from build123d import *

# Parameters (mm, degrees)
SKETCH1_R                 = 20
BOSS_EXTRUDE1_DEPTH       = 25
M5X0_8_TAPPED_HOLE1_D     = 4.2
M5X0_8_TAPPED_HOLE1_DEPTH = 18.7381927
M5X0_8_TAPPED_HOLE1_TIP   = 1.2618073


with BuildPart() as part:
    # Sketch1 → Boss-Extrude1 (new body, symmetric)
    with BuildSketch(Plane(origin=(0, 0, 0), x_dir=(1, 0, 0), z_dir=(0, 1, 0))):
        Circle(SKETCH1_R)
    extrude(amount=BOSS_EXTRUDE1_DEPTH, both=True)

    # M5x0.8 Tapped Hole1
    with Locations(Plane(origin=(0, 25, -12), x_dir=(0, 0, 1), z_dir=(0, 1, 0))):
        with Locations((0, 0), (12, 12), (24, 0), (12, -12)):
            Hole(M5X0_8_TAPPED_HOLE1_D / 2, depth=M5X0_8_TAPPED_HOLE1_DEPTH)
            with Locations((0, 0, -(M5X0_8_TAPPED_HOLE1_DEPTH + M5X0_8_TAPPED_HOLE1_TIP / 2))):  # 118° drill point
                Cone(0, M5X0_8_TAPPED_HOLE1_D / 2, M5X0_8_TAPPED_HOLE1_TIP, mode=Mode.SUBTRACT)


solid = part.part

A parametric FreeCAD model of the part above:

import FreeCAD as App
import Part
import Sketcher
from FreeCAD import Vector
Q = App.Units.Quantity

doc = App.newDocument("Part")
body = doc.addObject("PartDesign::Body", "Body")

# Sketch on XZ plane
sketch1 = body.newObject("Sketcher::SketchObject", "Sketch")
sketch1.AttachmentSupport = (doc.getObject("XZ_Plane"), [""])
sketch1.MapMode = "FlatFace"
sketch1.addGeometry(Part.Circle(Vector(0, 0, 0), Vector(0, 0, 1), 20), False)
sketch1.addConstraint(Sketcher.Constraint("Coincident", 0, 3, -1, 1))
sketch1.addConstraint(Sketcher.Constraint("Diameter", 0, Q("40 mm")))
pad1 = body.newObject("PartDesign::Pad", "Pad")
pad1.Profile = sketch1
pad1.Length = 50
pad1.Midplane = True

# Sketch on XZ plane
sketch2 = body.newObject("Sketcher::SketchObject", "Sketch001")
sketch2.AttachmentSupport = (doc.getObject("XZ_Plane"), [""])
sketch2.MapMode = "FlatFace"
sketch2.AttachmentOffset = App.Placement(Vector(0, 0, -25), App.Rotation())
sketch2.addGeometry(Part.Circle(Vector(0, -12, 0), Vector(0, 0, 1), 2.1), False)
sketch2.addGeometry(Part.Circle(Vector(12, 0, 0), Vector(0, 0, 1), 2.1), False)
sketch2.addGeometry(Part.Circle(Vector(0, 12, 0), Vector(0, 0, 1), 2.1), False)
sketch2.addGeometry(Part.Circle(Vector(-12, 0, 0), Vector(0, 0, 1), 2.1), False)
sketch2.addConstraint(Sketcher.Constraint("Equal", 0, 1))
sketch2.addConstraint(Sketcher.Constraint("Equal", 1, 2))
sketch2.addConstraint(Sketcher.Constraint("Equal", 2, 3))
sketch2.addConstraint(Sketcher.Constraint("Symmetric", 0, 3, 2, 3, -1, 1))
sketch2.addConstraint(Sketcher.Constraint("Symmetric", 1, 3, 3, 3, -1, 1))
sketch2.addConstraint(Sketcher.Constraint("PointOnObject", 0, 3, -2))
sketch2.addConstraint(Sketcher.Constraint("PointOnObject", 1, 3, -1))
sketch2.addConstraint(Sketcher.Constraint("Diameter", 0, Q("4.2 mm")))
sketch2.addConstraint(Sketcher.Constraint("DistanceY", 0, 3, -1, 1, Q("12 mm")))
sketch2.addConstraint(Sketcher.Constraint("DistanceX", -1, 1, 1, 3, Q("12 mm")))
doc.recompute()
hole = body.newObject("PartDesign::Hole", "Hole")
hole.Profile = sketch2
hole.ThreadType = "None"
hole.Diameter = 4.2
hole.DepthType = "Dimension"
hole.Depth = 18.738193
hole.DrillPoint = "Angled"
hole.DrillPointAngle = 118
hole.Reversed = True

doc.recompute()
